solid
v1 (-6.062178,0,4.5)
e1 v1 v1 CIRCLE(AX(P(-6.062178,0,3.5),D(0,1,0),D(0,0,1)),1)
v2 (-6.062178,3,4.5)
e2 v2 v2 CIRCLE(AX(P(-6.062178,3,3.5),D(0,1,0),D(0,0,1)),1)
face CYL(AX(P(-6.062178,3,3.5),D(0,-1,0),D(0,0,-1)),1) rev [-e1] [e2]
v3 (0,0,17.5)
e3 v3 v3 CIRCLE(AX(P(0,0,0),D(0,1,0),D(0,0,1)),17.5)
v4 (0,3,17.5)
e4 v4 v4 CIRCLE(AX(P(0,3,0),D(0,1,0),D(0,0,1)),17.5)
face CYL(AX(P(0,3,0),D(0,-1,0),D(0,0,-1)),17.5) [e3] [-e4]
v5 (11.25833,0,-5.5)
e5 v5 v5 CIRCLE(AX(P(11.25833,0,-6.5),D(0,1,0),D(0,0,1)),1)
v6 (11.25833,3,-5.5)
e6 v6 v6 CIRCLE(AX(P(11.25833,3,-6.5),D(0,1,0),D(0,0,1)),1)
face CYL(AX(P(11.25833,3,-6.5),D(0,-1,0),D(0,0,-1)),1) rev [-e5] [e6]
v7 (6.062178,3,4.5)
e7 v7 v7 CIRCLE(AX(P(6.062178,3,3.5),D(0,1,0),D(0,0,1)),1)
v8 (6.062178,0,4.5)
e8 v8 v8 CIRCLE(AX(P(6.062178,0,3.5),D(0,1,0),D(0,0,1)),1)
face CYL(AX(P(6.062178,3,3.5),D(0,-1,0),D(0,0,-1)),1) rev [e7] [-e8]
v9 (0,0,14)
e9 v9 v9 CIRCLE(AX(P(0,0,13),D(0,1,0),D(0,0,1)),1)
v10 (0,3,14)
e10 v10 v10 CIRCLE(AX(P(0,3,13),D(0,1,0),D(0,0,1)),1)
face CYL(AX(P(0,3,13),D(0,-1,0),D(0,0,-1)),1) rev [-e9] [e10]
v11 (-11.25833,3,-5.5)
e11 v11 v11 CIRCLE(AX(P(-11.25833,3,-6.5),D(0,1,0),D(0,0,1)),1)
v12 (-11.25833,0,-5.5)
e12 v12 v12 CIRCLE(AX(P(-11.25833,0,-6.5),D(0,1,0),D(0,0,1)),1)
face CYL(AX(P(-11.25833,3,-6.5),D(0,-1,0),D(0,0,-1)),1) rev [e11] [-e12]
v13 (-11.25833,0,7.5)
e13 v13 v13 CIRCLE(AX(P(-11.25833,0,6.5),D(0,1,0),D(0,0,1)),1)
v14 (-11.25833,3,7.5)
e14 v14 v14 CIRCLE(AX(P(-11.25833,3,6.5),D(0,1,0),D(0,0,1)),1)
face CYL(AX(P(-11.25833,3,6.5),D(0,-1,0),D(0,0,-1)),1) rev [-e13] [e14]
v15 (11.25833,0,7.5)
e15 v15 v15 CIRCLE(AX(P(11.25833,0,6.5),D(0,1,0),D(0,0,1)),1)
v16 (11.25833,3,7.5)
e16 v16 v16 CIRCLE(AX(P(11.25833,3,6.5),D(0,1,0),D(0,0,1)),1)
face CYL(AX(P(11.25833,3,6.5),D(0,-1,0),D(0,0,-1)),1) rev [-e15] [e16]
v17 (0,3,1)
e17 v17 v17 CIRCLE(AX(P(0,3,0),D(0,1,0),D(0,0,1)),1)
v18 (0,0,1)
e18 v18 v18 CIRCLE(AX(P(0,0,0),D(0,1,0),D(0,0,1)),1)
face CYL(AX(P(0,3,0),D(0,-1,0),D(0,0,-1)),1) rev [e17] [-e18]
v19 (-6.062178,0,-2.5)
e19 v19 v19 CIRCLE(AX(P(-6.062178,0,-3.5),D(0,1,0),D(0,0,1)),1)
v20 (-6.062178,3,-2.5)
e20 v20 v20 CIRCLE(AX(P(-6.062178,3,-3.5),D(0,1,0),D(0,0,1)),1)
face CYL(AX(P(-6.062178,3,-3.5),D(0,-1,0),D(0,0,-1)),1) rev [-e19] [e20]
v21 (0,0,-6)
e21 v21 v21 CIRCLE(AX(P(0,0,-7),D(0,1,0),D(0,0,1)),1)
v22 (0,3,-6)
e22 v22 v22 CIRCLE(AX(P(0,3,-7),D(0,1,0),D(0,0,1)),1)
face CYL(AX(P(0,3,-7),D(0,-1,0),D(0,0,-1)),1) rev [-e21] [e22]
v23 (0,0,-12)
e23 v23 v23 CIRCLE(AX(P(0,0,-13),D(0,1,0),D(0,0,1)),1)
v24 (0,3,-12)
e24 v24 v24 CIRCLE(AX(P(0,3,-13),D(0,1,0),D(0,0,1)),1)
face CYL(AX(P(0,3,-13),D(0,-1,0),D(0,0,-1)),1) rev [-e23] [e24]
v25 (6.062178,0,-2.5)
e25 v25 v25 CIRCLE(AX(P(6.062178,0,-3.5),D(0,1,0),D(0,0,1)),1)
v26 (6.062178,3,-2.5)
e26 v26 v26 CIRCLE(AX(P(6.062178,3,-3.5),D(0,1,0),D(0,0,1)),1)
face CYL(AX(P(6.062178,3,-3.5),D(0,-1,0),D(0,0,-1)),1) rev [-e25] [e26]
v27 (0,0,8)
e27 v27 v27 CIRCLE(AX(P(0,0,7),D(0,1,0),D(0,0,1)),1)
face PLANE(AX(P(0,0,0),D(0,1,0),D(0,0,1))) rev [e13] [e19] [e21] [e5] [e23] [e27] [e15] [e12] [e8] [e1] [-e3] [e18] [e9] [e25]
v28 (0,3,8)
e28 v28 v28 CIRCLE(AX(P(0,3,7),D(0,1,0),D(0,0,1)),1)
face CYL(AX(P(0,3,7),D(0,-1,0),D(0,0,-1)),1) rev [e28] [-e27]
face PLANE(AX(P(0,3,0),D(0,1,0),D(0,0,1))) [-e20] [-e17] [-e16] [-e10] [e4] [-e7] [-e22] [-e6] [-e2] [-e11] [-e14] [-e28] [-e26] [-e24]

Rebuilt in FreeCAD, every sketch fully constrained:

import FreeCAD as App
import Part
import Sketcher

V = App.Vector

doc = App.newDocument("Part")
params = doc.addObject("Spreadsheet::Sheet", "Params")
for row, (alias, value) in enumerate([
    ("sketch1_diameter", "35 mm"),
    ("sketch1_diameter2", "2 mm"),
    ("pad1_length", "3 mm"),
], start=1):
    params.set(f"A{row}", alias)
    params.set(f"B{row}", "=" + value)
    params.setAlias(f"B{row}", alias)

body = doc.addObject("PartDesign::Body", "Body")

# Sketch on XZ plane
sketch1 = body.newObject("Sketcher::SketchObject", "Sketch")
sketch1.AttachmentSupport = (doc.getObject("XZ_Plane"), [""])
sketch1.MapMode = "FlatFace"
sketch1.addGeometry([
    Part.Circle(V(0, 0, 0), V(0, 0, 1), 17.5),  # 0
    Part.Circle(V(-11.3, -6.5, 0), V(0, 0, 1), 1),  # 1
    Part.Circle(V(0, -13, 0), V(0, 0, 1), 1),  # 2
    Part.Circle(V(-6.1, -3.5, 0), V(0, 0, 1), 1),  # 3
    Part.Circle(V(0, -7, 0), V(0, 0, 1), 1),  # 4
    Part.Circle(V(-11.3, 6.5, 0), V(0, 0, 1), 1),  # 5
    Part.Circle(V(-6.1, 3.5, 0), V(0, 0, 1), 1),  # 6
    Part.Circle(V(6.1, -3.5, 0), V(0, 0, 1), 1),  # 7
    Part.Circle(V(11.3, -6.5, 0), V(0, 0, 1), 1),  # 8
    Part.Circle(V(0, 0, 0), V(0, 0, 1), 1),  # 9
    Part.Circle(V(6.1, 3.5, 0), V(0, 0, 1), 1),  # 10
    Part.Circle(V(0, 7, 0), V(0, 0, 1), 1),  # 11
    Part.Circle(V(0, 13, 0), V(0, 0, 1), 1),  # 12
    Part.Circle(V(11.3, 6.5, 0), V(0, 0, 1), 1),  # 13
], False)
sketch1.addConstraint([
    Sketcher.Constraint("Coincident", 0, 3, -1, 1),
    Sketcher.Constraint("Coincident", 9, 3, -1, 1),
    Sketcher.Constraint("Equal", 1, 2),
    Sketcher.Constraint("Equal", 2, 3),
    Sketcher.Constraint("Equal", 3, 4),
    Sketcher.Constraint("Equal", 4, 5),
    Sketcher.Constraint("Equal", 5, 6),
    Sketcher.Constraint("Equal", 6, 7),
    Sketcher.Constraint("Equal", 7, 8),
    Sketcher.Constraint("Equal", 8, 9),
    Sketcher.Constraint("Equal", 9, 10),
    Sketcher.Constraint("Equal", 10, 11),
    Sketcher.Constraint("Equal", 11, 12),
    Sketcher.Constraint("Equal", 12, 13),
    Sketcher.Constraint("Symmetric", 6, 3, 7, 3, -1, 1),
    Sketcher.Constraint("Symmetric", 5, 3, 8, 3, -1, 1),
    Sketcher.Constraint("Symmetric", 3, 3, 10, 3, -1, 1),
    Sketcher.Constraint("Symmetric", 4, 3, 11, 3, -1, 1),
    Sketcher.Constraint("Symmetric", 2, 3, 12, 3, -1, 1),
    Sketcher.Constraint("Symmetric", 1, 3, 13, 3, -1, 1),
    Sketcher.Constraint("Symmetric", 3, 3, 7, 3, -2),
    Sketcher.Constraint("Symmetric", 1, 3, 8, 3, -2),
    Sketcher.Constraint("PointOnObject", 2, 3, -2),
    Sketcher.Constraint("PointOnObject", 4, 3, -2),
    Sketcher.Constraint("Diameter", 0, 35.0),
    Sketcher.Constraint("Diameter", 1, 2.0),
    Sketcher.Constraint("DistanceY", 2, 3, -1, 1, 13.0),
    Sketcher.Constraint("DistanceY", 4, 3, -1, 1, 7.0),
    Sketcher.Constraint("DistanceY", 1, 3, 3, 3, 3.0),
    Sketcher.Constraint("DistanceY", 3, 3, 5, 3, 10.0),
    Sketcher.Constraint("DistanceX", 1, 3, -1, 1, 11.25833),
    Sketcher.Constraint("DistanceX", 3, 3, 8, 3, 17.320508),
])
sketch1.setExpression("Constraints[24]", "Params.sketch1_diameter")
sketch1.setExpression("Constraints[25]", "Params.sketch1_diameter2")
pad1 = body.newObject("PartDesign::Pad", "Pad")
pad1.Profile = sketch1
pad1.setExpression("Length", "Params.pad1_length")
pad1.Reversed = True

doc.recompute()
